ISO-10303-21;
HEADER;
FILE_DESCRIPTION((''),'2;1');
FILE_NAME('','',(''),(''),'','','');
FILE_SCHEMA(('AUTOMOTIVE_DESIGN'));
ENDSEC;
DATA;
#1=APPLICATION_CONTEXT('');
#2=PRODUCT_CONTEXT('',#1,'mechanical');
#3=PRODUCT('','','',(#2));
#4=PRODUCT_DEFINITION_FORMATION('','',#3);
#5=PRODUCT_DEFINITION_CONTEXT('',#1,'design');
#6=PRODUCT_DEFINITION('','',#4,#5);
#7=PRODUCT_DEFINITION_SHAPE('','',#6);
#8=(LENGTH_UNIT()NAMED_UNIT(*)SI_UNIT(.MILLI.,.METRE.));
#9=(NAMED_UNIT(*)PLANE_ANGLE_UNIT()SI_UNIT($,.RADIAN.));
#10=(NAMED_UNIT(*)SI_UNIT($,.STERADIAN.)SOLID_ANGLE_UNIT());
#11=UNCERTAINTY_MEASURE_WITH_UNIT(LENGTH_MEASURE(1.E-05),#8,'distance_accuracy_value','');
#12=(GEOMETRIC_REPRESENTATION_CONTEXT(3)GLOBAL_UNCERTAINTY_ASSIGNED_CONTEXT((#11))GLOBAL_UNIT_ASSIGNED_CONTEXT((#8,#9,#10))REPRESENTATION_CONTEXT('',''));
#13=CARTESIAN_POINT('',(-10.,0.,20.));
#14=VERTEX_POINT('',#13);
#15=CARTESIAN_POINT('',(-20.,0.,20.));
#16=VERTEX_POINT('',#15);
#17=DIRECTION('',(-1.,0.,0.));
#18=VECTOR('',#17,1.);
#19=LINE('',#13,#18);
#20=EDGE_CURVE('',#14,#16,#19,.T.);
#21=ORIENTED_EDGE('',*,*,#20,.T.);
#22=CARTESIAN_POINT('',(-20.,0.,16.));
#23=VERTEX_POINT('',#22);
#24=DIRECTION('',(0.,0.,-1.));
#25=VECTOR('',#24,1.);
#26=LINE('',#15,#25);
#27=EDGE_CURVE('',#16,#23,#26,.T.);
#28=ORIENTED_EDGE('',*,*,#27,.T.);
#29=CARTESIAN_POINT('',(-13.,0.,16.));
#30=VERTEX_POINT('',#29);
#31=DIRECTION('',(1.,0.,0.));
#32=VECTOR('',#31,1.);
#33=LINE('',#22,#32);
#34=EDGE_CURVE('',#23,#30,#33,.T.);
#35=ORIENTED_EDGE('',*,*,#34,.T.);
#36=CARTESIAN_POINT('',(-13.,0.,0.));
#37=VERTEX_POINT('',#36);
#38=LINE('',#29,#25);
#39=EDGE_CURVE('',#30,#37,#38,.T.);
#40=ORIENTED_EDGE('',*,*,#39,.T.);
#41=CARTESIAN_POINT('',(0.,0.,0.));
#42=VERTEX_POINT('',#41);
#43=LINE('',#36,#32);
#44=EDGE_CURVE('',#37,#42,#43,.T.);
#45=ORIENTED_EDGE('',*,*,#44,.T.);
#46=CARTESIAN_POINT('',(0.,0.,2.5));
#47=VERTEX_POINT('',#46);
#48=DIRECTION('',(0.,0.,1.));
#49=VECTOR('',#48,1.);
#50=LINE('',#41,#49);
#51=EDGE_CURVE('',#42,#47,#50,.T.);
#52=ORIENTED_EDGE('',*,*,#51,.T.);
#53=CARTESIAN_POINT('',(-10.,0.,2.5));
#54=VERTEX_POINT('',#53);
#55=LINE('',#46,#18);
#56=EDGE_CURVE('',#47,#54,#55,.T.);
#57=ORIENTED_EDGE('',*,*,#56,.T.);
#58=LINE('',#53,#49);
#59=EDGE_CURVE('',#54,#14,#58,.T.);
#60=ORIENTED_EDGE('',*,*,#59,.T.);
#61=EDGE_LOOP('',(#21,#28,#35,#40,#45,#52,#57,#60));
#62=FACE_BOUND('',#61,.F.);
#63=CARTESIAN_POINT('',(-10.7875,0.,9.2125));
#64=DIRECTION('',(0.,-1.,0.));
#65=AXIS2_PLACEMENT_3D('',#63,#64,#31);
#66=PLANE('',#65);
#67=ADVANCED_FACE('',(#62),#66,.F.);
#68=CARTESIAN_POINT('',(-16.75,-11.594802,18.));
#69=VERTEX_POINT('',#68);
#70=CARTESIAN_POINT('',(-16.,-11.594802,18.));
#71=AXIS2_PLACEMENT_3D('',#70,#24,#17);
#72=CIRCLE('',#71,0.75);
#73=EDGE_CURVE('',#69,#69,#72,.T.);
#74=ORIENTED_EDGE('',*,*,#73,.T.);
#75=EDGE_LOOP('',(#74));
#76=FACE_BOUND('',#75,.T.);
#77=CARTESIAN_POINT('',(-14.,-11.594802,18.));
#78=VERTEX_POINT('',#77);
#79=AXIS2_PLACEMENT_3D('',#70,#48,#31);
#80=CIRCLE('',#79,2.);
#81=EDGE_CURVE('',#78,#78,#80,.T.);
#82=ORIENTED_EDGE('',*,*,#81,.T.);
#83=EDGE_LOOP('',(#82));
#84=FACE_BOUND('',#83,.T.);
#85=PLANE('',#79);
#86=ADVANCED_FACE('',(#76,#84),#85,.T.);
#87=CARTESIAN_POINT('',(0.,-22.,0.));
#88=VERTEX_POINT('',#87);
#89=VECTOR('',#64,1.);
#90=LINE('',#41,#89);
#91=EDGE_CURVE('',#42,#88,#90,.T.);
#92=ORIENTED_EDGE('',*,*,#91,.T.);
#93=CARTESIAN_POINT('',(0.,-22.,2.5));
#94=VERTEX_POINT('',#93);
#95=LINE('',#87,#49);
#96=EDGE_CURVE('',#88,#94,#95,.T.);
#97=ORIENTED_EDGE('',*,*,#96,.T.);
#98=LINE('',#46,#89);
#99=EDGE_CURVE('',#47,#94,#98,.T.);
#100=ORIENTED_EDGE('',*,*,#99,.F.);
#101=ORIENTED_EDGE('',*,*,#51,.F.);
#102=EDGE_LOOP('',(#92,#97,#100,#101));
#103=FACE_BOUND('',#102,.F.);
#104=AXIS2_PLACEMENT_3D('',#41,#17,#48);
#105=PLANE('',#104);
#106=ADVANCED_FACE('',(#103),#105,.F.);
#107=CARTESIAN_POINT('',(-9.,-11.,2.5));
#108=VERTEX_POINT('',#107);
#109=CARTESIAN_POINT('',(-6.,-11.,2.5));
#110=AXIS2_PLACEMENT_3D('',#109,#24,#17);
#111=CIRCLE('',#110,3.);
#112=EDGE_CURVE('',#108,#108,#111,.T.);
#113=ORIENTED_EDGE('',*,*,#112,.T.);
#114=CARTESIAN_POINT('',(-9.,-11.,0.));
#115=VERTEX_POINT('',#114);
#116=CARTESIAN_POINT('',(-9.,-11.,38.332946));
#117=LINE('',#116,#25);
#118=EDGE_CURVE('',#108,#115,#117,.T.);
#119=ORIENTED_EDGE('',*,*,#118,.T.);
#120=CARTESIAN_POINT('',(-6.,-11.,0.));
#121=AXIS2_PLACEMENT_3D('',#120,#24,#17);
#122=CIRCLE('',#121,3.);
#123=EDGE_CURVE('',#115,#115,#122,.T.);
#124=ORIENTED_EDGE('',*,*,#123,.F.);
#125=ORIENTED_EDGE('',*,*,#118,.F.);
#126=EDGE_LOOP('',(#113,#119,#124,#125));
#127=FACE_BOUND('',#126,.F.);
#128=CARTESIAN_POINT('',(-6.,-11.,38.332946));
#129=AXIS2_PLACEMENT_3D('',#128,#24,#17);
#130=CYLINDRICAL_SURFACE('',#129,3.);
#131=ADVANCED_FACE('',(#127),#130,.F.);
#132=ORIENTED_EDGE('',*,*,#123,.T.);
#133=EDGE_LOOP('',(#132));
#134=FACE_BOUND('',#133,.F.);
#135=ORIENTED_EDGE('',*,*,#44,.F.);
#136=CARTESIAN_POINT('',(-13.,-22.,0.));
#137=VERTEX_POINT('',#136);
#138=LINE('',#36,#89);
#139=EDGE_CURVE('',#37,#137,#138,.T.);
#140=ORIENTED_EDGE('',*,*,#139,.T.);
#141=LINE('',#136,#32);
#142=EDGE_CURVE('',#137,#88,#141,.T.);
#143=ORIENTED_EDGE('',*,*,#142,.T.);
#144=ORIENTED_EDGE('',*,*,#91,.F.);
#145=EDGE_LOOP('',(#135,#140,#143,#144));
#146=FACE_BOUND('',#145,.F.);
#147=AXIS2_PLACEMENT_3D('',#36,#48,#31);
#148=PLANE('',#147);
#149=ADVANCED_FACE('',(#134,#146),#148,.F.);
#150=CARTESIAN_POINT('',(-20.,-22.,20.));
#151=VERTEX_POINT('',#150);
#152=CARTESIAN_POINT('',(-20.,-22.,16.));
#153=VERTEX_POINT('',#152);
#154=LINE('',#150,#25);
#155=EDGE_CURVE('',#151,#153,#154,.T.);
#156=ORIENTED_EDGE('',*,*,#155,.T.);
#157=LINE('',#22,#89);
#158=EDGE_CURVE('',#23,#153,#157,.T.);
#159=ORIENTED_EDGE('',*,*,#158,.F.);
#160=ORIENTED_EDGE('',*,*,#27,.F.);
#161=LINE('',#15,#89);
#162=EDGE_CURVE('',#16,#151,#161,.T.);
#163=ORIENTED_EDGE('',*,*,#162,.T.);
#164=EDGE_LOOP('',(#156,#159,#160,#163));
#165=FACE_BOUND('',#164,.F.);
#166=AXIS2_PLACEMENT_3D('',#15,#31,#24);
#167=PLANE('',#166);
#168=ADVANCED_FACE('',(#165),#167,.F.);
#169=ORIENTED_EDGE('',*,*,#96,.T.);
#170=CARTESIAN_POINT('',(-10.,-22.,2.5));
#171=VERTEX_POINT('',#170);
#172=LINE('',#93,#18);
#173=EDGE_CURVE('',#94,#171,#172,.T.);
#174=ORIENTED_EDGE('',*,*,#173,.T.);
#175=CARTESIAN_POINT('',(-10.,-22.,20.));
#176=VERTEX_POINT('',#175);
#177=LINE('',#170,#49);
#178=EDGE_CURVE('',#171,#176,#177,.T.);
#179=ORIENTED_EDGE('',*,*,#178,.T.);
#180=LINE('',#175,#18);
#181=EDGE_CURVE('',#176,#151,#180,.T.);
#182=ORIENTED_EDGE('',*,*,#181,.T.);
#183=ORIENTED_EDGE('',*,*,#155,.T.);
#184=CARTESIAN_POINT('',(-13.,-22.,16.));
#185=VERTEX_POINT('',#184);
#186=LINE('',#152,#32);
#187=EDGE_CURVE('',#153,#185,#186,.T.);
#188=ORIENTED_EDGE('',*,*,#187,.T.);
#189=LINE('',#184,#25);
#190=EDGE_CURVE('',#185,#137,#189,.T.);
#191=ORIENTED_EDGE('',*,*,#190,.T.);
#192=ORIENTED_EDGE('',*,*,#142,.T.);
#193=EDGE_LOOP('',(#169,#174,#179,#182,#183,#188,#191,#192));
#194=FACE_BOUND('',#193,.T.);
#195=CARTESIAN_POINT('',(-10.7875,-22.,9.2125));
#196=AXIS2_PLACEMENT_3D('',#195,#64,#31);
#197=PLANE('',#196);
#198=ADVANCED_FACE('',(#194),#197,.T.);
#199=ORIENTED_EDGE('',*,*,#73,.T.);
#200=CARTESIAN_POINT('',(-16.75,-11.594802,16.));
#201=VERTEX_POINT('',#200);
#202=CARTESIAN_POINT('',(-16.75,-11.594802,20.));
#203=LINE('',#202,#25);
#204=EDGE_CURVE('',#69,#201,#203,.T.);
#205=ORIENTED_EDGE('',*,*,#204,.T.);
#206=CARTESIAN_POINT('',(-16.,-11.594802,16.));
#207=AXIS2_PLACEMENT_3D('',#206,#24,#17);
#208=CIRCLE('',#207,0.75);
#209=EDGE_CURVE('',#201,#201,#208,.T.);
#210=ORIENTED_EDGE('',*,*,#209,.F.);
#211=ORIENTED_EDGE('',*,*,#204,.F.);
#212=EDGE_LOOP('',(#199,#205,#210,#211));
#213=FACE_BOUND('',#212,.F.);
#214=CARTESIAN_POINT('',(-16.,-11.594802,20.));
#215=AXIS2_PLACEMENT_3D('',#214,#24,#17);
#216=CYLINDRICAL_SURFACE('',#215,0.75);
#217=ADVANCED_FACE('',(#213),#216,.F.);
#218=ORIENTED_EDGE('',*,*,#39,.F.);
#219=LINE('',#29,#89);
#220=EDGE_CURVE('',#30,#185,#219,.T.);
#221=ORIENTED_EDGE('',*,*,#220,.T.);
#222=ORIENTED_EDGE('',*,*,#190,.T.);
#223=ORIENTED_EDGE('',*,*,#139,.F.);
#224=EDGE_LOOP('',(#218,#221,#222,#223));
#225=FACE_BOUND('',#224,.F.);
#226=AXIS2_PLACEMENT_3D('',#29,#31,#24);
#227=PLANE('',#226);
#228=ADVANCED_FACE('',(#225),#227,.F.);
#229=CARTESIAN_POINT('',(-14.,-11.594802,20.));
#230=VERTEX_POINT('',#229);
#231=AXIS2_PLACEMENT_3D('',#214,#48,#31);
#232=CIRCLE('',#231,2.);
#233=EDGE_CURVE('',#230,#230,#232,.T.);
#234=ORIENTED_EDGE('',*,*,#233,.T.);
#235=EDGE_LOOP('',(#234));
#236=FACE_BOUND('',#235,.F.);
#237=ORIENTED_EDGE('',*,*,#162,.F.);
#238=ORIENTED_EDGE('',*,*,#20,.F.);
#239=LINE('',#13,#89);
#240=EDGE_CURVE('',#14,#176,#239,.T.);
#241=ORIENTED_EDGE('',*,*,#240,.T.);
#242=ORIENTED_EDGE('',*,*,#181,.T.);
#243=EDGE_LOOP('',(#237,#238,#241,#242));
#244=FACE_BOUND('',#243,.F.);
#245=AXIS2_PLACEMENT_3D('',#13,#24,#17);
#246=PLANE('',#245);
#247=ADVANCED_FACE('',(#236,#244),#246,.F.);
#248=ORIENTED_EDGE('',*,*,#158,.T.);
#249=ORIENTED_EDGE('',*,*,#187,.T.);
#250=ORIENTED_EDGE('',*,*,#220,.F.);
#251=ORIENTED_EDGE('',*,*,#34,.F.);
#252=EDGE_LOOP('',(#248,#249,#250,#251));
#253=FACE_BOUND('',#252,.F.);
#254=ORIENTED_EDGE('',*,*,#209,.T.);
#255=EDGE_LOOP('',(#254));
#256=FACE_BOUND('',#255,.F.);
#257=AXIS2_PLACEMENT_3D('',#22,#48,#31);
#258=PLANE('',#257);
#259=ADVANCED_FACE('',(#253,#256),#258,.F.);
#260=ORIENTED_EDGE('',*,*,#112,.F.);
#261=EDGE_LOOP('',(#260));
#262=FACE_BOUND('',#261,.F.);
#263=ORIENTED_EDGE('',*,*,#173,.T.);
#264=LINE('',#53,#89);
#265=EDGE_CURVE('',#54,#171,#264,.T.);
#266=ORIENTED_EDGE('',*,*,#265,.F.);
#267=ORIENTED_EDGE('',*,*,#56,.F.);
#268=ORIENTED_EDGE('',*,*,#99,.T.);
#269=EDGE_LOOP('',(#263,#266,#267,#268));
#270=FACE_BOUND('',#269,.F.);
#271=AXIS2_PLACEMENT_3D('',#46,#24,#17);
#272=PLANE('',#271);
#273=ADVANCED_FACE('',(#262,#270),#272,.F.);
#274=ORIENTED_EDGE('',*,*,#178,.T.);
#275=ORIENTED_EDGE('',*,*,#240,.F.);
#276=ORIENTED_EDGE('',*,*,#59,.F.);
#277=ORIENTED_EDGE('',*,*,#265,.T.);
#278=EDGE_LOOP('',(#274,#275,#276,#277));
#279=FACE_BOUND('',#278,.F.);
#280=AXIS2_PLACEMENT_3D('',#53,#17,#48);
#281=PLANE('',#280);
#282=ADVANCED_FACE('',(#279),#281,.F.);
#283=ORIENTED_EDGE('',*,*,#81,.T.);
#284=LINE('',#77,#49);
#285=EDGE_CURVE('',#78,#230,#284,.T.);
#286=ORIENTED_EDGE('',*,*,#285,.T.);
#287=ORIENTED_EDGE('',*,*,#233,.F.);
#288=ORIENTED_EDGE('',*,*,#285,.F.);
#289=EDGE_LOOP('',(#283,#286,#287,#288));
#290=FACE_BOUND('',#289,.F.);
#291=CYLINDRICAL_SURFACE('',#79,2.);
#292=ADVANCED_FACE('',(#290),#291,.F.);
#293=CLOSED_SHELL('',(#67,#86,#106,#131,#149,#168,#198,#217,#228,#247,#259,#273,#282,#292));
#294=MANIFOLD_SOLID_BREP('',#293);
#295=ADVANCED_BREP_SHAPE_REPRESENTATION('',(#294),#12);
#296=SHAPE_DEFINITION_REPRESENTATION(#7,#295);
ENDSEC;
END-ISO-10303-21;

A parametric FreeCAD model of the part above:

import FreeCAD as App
import Part
import Sketcher
from FreeCAD import Vector
Q = App.Units.Quantity


def add_polygon(sketch, points):
    """Adds a closed chain of lines whose ends are joined by coincident constraints."""
    first, n = sketch.GeometryCount, len(points)
    for a, b in zip(points, points[1:] + points[:1]):
        sketch.addGeometry(Part.LineSegment(App.Vector(*a, 0), App.Vector(*b, 0)), False)
    for i in range(n):
        sketch.addConstraint(Sketcher.Constraint("Coincident", first + i, 2, first + (i + 1) % n, 1))

doc = App.newDocument("Part")
params = doc.addObject("Spreadsheet::Sheet", "Params")
for row, (alias, value) in enumerate([
    ("sketch1_width", "13 mm"),
    ("sketch1_width2", "10 mm"),
    ("sketch1_height", "4 mm"),
    ("sketch1_height2", "16 mm"),
    ("sketch1_height3", "2.5 mm"),
    ("pad1_length", "22 mm"),
    ("sketch2_diameter", "6 mm"),
    ("hole_diameter", "6 mm"),
    ("sketch3_diameter", "1.5 mm"),
    ("hole2_diameter", "1.5 mm"),
    ("hole2_cbore_diameter", "4 mm"),
    ("hole2_cbore_depth", "2 mm"),
], start=1):
    params.set(f"A{row}", alias)
    params.set(f"B{row}", "=" + value)
    params.setAlias(f"B{row}", alias)

body = doc.addObject("PartDesign::Body", "Body")

sketch1 = body.newObject("Sketcher::SketchObject", "Sketch")
sketch1.AttachmentSupport = (doc.getObject("XZ_Plane"), [""])
sketch1.MapMode = "FlatFace"
add_polygon(sketch1, [(-13, 0), (0, 0), (0, 2.5), (-10, 2.5), (-10, 20), (-20, 20), (-20, 16), (-13, 16)])
sketch1.addConstraint([
    Sketcher.Constraint("Horizontal", 0),
    Sketcher.Constraint("Vertical", 1),
    Sketcher.Constraint("Horizontal", 2),
    Sketcher.Constraint("Vertical", 3),
    Sketcher.Constraint("Horizontal", 4),
    Sketcher.Constraint("Vertical", 5),
    Sketcher.Constraint("Horizontal", 6),
    Sketcher.Constraint("Vertical", 7),
    Sketcher.Constraint("Coincident", 0, 2, -1, 1),
    Sketcher.Constraint("Equal", 2, 4),
    Sketcher.Constraint("DistanceX", 0, 1, 0, 2, Q("13 mm")),
    Sketcher.Constraint("DistanceX", 2, 2, 2, 1, Q("10 mm")),
    Sketcher.Constraint("DistanceY", 5, 2, 5, 1, Q("4 mm")),
    Sketcher.Constraint("DistanceY", 7, 2, 7, 1, Q("16 mm")),
    Sketcher.Constraint("DistanceY", 1, 1, 1, 2, Q("2.5 mm")),
])
sketch1.setExpression("Constraints[18]", "Params.sketch1_width")
sketch1.setExpression("Constraints[19]", "Params.sketch1_width2")
sketch1.setExpression("Constraints[20]", "Params.sketch1_height")
sketch1.setExpression("Constraints[21]", "Params.sketch1_height2")
sketch1.setExpression("Constraints[22]", "Params.sketch1_height3")
pad1 = body.newObject("PartDesign::Pad", "Pad")
pad1.Profile = sketch1
pad1.setExpression("Length", "Params.pad1_length")

sketch2 = body.newObject("Sketcher::SketchObject", "Sketch001")
sketch2.AttachmentSupport = (doc.getObject("XY_Plane"), [""])
sketch2.MapMode = "FlatFace"
sketch2.AttachmentOffset = App.Placement(Vector(0, 0, 2.5), App.Rotation())
sketch2.addGeometry(Part.Circle(Vector(-6, -11, 0), Vector(0, 0, 1), 3), False)
sketch2.addConstraint([
    Sketcher.Constraint("Diameter", 0, Q("6 mm")),
    Sketcher.Constraint("DistanceX", 0, 3, -1, 1, Q("6 mm")),
    Sketcher.Constraint("DistanceY", 0, 3, -1, 1, Q("11 mm")),
])
sketch2.setExpression("Constraints[0]", "Params.sketch2_diameter")
doc.recompute()
hole = body.newObject("PartDesign::Hole", "Hole")
hole.Profile = sketch2
hole.ThreadType = "None"
hole.setExpression("Diameter", "Params.hole_diameter")
hole.DepthType = "ThroughAll"

sketch3 = body.newObject("Sketcher::SketchObject", "Sketch002")
sketch3.AttachmentSupport = (doc.getObject("XY_Plane"), [""])
sketch3.MapMode = "FlatFace"
sketch3.AttachmentOffset = App.Placement(Vector(0, 0, 20), App.Rotation())
sketch3.addGeometry(Part.Circle(Vector(-16, -11.594802, 0), Vector(0, 0, 1), 0.75), False)
sketch3.addConstraint([
    Sketcher.Constraint("Diameter", 0, Q("1.5 mm")),
    Sketcher.Constraint("DistanceX", 0, 3, -1, 1, Q("16 mm")),
    Sketcher.Constraint("DistanceY", 0, 3, -1, 1, Q("11.594802 mm")),
])
sketch3.setExpression("Constraints[0]", "Params.sketch3_diameter")
doc.recompute()
hole2 = body.newObject("PartDesign::Hole", "Hole001")
hole2.Profile = sketch3
hole2.ThreadType = "None"
hole2.setExpression("Diameter", "Params.hole2_diameter")
hole2.DepthType = "ThroughAll"
hole2.HoleCutType = "Counterbore"
hole2.setExpression("HoleCutDiameter", "Params.hole2_cbore_diameter")
hole2.setExpression("HoleCutDepth", "Params.hole2_cbore_depth")

doc.recompute()
